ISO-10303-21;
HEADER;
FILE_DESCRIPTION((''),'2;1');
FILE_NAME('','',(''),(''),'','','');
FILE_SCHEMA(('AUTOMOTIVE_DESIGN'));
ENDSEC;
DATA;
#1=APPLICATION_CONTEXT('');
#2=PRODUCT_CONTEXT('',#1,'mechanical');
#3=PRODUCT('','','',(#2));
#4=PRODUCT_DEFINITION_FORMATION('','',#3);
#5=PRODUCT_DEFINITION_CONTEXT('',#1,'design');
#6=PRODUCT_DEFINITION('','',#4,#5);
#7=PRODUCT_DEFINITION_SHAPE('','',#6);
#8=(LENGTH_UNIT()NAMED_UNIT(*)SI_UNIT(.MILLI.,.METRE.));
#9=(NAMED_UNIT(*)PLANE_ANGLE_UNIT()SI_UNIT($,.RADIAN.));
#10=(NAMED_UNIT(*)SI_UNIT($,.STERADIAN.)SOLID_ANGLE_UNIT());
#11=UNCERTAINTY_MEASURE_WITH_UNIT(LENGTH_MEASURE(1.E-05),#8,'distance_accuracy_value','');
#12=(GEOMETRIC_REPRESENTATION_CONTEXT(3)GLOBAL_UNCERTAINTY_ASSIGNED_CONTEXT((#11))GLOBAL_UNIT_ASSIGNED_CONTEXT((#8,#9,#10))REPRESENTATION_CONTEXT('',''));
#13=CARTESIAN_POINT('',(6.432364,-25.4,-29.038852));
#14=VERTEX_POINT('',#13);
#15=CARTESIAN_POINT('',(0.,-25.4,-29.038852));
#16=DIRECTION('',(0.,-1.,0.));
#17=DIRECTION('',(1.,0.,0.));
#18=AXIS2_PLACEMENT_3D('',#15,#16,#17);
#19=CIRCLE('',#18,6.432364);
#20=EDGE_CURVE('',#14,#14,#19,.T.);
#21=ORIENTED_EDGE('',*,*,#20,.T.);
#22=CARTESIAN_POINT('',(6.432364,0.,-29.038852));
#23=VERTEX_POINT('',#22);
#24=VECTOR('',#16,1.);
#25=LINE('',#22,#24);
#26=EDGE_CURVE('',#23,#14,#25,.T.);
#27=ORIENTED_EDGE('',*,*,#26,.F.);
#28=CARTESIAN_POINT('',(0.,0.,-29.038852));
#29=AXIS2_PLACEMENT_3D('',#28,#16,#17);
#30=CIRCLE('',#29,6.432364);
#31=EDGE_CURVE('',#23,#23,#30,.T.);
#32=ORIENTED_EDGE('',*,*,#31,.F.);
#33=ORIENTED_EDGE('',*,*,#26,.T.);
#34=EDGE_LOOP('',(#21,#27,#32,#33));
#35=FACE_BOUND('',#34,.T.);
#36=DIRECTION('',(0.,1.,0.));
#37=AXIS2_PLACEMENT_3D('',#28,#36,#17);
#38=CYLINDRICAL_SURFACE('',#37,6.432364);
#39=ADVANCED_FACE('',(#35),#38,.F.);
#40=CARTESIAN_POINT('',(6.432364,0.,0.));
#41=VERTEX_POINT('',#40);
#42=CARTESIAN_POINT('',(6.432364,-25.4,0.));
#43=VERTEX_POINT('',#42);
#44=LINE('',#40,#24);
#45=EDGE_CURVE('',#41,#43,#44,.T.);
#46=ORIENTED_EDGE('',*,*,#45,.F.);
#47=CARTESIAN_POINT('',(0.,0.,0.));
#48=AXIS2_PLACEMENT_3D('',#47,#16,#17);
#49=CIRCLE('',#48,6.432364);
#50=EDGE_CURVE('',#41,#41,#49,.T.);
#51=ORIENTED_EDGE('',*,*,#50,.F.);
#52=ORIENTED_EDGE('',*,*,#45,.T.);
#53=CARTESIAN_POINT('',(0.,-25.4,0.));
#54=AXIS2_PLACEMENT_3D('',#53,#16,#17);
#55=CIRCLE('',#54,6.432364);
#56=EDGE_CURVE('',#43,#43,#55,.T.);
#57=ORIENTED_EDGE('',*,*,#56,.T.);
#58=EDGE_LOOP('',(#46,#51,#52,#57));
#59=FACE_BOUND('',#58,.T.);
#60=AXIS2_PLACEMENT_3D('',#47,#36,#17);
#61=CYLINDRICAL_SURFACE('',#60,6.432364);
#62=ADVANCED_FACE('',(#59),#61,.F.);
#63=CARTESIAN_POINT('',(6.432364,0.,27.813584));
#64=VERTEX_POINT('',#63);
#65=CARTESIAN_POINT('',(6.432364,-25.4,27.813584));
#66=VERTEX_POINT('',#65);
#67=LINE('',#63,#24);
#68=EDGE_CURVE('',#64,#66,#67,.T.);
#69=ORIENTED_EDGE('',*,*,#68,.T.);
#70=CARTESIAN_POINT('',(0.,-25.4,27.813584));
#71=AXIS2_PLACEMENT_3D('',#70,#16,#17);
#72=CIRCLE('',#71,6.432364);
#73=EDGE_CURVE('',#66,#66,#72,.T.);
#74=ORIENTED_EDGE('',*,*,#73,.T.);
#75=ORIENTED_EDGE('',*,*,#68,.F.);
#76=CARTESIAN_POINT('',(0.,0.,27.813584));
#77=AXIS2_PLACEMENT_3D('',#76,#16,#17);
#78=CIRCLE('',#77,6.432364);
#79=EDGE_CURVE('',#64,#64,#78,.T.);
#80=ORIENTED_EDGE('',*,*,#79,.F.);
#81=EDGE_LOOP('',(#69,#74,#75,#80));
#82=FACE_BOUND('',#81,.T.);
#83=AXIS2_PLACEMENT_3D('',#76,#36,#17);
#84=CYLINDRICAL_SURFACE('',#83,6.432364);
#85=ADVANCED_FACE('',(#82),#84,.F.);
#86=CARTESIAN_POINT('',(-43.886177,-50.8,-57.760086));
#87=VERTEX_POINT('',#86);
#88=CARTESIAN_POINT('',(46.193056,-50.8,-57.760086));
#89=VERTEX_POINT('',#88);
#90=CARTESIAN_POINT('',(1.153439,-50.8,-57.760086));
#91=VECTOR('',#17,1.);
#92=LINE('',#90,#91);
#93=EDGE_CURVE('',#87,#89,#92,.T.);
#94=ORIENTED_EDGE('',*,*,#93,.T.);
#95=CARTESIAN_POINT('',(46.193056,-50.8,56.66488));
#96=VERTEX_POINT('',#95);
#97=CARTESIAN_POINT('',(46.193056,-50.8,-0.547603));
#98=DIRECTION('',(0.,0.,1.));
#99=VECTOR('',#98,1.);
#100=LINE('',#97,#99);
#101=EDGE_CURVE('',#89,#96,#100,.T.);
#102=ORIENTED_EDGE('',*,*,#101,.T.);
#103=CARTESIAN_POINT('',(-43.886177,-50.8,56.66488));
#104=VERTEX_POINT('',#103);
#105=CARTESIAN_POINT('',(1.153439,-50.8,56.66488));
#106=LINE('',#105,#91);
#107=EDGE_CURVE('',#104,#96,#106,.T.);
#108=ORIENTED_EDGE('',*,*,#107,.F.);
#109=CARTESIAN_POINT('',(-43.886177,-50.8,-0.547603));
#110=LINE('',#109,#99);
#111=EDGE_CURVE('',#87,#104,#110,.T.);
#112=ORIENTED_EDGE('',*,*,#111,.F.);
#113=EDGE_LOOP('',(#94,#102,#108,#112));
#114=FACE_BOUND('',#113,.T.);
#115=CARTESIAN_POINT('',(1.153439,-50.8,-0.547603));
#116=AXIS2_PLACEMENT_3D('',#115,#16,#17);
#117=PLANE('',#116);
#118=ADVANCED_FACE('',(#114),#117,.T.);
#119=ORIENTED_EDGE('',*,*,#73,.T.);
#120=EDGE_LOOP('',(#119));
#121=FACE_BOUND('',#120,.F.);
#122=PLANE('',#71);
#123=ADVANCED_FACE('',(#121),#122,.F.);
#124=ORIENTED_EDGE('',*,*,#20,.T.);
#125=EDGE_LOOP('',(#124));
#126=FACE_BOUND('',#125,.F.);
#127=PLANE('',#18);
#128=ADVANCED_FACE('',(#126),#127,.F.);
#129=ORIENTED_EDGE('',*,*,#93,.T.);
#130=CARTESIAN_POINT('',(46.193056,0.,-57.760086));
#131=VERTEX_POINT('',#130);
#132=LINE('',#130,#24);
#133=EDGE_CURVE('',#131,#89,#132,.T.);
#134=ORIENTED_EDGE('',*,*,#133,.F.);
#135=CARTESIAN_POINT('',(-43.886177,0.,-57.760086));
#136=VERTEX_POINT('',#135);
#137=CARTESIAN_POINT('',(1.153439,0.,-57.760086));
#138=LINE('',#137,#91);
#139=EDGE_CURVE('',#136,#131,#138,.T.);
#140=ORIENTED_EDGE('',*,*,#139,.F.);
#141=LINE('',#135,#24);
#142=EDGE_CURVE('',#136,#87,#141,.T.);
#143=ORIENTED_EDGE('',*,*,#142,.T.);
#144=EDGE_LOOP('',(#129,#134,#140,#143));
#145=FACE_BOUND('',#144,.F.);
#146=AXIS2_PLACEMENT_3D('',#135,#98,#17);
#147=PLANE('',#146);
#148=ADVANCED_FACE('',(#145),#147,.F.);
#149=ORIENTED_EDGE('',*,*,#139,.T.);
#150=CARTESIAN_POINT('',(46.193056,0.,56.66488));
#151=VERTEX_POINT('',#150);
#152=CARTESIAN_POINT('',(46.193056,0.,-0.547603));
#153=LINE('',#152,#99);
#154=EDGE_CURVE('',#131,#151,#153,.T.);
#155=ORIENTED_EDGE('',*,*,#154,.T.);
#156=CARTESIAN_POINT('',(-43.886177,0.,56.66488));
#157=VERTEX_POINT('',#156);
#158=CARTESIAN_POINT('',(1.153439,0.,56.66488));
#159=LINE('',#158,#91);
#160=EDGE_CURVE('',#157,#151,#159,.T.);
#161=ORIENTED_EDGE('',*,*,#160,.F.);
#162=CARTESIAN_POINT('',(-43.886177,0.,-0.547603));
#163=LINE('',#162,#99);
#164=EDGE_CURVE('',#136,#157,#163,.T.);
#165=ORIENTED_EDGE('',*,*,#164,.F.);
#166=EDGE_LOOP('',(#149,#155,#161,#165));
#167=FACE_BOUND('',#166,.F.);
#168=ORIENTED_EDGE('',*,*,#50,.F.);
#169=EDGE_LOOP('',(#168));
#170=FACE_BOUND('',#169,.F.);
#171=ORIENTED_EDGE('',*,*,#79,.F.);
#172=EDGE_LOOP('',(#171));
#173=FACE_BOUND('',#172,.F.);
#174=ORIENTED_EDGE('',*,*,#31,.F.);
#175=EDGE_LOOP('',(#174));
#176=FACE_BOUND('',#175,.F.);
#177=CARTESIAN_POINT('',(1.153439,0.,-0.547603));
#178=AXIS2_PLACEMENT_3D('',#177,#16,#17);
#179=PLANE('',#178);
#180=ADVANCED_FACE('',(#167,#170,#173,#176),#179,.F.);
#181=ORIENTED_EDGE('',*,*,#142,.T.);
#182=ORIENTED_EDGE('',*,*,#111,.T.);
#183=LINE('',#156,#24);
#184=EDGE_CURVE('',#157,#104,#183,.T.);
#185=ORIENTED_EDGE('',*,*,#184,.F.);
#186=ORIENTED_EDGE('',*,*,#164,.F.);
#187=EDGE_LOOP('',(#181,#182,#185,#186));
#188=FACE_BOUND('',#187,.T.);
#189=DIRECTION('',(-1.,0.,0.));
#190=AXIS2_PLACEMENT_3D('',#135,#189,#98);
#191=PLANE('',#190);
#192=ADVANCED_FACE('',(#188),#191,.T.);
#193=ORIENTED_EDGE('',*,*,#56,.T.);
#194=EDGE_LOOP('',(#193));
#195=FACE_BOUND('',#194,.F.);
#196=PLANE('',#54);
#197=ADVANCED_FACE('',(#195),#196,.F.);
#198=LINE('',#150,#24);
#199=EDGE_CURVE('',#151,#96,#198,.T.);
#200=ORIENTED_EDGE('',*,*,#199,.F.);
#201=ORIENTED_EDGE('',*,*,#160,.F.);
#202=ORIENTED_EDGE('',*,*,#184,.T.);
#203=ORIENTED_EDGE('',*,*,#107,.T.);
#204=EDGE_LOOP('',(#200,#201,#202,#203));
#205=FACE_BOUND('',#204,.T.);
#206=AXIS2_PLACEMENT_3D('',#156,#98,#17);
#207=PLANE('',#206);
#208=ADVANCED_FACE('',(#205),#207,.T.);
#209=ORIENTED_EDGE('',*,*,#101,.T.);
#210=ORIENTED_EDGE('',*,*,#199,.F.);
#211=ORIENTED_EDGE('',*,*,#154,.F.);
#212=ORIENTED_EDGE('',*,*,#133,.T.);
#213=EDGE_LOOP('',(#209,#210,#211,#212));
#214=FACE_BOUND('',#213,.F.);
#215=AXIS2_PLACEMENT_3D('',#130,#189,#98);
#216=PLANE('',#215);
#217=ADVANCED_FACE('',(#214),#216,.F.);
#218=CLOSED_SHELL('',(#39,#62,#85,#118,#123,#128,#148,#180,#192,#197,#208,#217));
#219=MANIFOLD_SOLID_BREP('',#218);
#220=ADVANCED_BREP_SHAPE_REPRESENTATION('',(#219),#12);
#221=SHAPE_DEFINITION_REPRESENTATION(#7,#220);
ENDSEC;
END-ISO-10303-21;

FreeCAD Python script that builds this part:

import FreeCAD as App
import Part
import Sketcher
from FreeCAD import Vector
Q = App.Units.Quantity

doc = App.newDocument("Part")
body = doc.addObject("PartDesign::Body", "Body")

# Sketch on XZ plane
sketch1 = body.newObject("Sketcher::SketchObject", "Sketch")
sketch1.AttachmentSupport = (doc.getObject("XZ_Plane"), [""])
sketch1.MapMode = "FlatFace"
sketch1.addGeometry(Part.LineSegment(Vector(-44, 57, 0), Vector(-44, -58, 0)), False)
sketch1.addGeometry(Part.LineSegment(Vector(-44, -58, 0), Vector(46, -58, 0)), False)
sketch1.addGeometry(Part.LineSegment(Vector(46, -58, 0), Vector(46, 57, 0)), False)
sketch1.addGeometry(Part.LineSegment(Vector(46, 57, 0), Vector(-44, 57, 0)), False)
sketch1.addConstraint(Sketcher.Constraint("Coincident", 0, 2, 1, 1))
sketch1.addConstraint(Sketcher.Constraint("Coincident", 1, 2, 2, 1))
sketch1.addConstraint(Sketcher.Constraint("Coincident", 2, 2, 3, 1))
sketch1.addConstraint(Sketcher.Constraint("Coincident", 3, 2, 0, 1))
sketch1.addConstraint(Sketcher.Constraint("Vertical", 0))
sketch1.addConstraint(Sketcher.Constraint("Horizontal", 1))
sketch1.addConstraint(Sketcher.Constraint("Vertical", 2))
sketch1.addConstraint(Sketcher.Constraint("Horizontal", 3))
sketch1.addConstraint(Sketcher.Constraint("DistanceX", 1, 1, 1, 2, Q("90.079233 mm")))
sketch1.addConstraint(Sketcher.Constraint("DistanceY", 0, 2, 0, 1, Q("114.424966 mm")))
sketch1.addConstraint(Sketcher.Constraint("DistanceY", -1, 1, 2, 2, Q("56.66488 mm")))
sketch1.addConstraint(Sketcher.Constraint("DistanceX", 0, 2, -1, 1, Q("43.886177 mm")))
pad1 = body.newObject("PartDesign::Pad", "Pad")
pad1.Profile = sketch1
pad1.Length = Q("2 in")

# Sketch on XZ plane
sketch2 = body.newObject("Sketcher::SketchObject", "Sketch001")
sketch2.AttachmentSupport = (doc.getObject("XZ_Plane"), [""])
sketch2.MapMode = "FlatFace"
sketch2.addGeometry(Part.Circle(Vector(0, 28, 0), Vector(0, 0, 1), 6), False)
sketch2.addGeometry(Part.Circle(Vector(0, 0, 0), Vector(0, 0, 1), 6), False)
sketch2.addGeometry(Part.Circle(Vector(0, -29, 0), Vector(0, 0, 1), 6), False)
sketch2.addConstraint(Sketcher.Constraint("Coincident", 1, 3, -1, 1))
sketch2.addConstraint(Sketcher.Constraint("Equal", 0, 1))
sketch2.addConstraint(Sketcher.Constraint("Equal", 1, 2))
sketch2.addConstraint(Sketcher.Constraint("PointOnObject", 0, 3, -2))
sketch2.addConstraint(Sketcher.Constraint("PointOnObject", 2, 3, -2))
sketch2.addConstraint(Sketcher.Constraint("Diameter", 0, Q("12.864728 mm")))
sketch2.addConstraint(Sketcher.Constraint("DistanceY", -1, 1, 0, 3, Q("27.813584 mm")))
sketch2.addConstraint(Sketcher.Constraint("DistanceY", 2, 3, -1, 1, Q("29.038852 mm")))
pocket1 = body.newObject("PartDesign::Pocket", "Pocket")
pocket1.Profile = sketch2
pocket1.Type = "TwoLengths"
pocket1.Length = Q("2 in")
pocket1.Length2 = Q("1 in")

doc.recompute()
